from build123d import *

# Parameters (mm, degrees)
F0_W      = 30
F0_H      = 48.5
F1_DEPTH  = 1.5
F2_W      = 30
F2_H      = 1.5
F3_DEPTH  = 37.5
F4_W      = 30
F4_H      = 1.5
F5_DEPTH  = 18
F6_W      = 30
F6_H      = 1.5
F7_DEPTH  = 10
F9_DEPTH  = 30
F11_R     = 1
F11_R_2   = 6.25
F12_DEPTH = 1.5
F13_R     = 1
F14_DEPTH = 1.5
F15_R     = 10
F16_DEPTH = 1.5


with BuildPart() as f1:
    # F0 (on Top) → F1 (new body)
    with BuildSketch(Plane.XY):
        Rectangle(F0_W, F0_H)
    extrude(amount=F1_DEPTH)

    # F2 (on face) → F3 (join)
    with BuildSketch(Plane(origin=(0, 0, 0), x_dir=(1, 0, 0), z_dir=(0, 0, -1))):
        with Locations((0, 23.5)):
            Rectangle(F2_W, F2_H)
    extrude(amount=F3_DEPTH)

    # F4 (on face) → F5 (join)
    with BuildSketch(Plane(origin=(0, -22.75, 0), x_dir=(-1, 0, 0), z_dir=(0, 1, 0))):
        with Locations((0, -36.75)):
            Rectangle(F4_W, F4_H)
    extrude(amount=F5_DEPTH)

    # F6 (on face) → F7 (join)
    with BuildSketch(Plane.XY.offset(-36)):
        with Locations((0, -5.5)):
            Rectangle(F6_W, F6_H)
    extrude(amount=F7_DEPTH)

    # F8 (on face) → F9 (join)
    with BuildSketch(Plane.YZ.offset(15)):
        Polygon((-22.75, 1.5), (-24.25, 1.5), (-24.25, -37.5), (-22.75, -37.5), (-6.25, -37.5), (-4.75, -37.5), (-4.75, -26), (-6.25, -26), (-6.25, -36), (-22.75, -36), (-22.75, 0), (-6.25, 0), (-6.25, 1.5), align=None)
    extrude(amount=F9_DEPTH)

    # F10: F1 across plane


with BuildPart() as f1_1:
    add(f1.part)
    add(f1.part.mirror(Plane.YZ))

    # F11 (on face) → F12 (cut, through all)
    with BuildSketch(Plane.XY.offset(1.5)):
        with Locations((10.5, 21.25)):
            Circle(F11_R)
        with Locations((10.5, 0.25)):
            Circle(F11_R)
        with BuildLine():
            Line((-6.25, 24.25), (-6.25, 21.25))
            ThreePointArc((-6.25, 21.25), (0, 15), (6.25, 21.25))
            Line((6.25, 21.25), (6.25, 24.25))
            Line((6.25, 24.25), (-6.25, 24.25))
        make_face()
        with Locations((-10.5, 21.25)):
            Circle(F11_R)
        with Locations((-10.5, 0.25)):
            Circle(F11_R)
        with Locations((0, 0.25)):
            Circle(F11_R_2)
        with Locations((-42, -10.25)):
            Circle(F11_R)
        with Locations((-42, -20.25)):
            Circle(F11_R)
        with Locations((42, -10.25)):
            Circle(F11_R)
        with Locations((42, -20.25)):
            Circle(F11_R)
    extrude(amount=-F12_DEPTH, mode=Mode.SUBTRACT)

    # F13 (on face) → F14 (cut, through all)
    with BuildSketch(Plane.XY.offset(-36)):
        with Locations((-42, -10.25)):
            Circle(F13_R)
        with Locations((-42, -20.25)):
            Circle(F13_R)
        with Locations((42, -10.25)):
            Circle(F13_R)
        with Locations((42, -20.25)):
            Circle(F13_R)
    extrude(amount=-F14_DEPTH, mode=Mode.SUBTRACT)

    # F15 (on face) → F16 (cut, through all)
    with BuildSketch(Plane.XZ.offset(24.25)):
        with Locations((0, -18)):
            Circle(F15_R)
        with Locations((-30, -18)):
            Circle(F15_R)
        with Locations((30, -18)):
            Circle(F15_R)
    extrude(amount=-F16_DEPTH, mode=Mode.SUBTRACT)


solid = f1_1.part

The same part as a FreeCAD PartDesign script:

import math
import FreeCAD as App
import Part
import Sketcher


def add_polygon(sketch, points):
    """Adds a closed chain of lines whose ends are joined by coincident constraints."""
    first, n = sketch.GeometryCount, len(points)
    for a, b in zip(points, points[1:] + points[:1]):
        sketch.addGeometry(Part.LineSegment(App.Vector(*a, 0), App.Vector(*b, 0)), False)
    for i in range(n):
        sketch.addConstraint(Sketcher.Constraint("Coincident", first + i, 2, first + (i + 1) % n, 1))

doc = App.newDocument("Part")
body = doc.addObject("PartDesign::Body", "Body")

sketch1 = body.newObject("Sketcher::SketchObject", "Sketch")
sketch1.AttachmentSupport = (doc.getObject("XY_Plane"), [""])
sketch1.MapMode = "FlatFace"
add_polygon(sketch1, [(-15, 24), (-15, -24), (15, -24), (15, 24)])
sketch1.addConstraint([
    Sketcher.Constraint("Vertical", 0),
    Sketcher.Constraint("Horizontal", 1),
    Sketcher.Constraint("Vertical", 2),
    Sketcher.Constraint("Horizontal", 3),
    Sketcher.Constraint("Symmetric", 0, 2, 2, 2, -1, 1),
    Sketcher.Constraint("DistanceX", 1, 1, 1, 2, 30.0),
    Sketcher.Constraint("DistanceY", 0, 2, 0, 1, 48.5),
])
pad1 = body.newObject("PartDesign::Pad", "Pad")
pad1.Profile = sketch1
pad1.Length = 1.5

sketch2 = body.newObject("Sketcher::SketchObject", "Sketch001")
sketch2.AttachmentSupport = (doc.getObject("XY_Plane"), [""])
sketch2.MapMode = "FlatFace"
add_polygon(sketch2, [(-15, -24.2), (-15, -22.8), (15, -22.8), (15, -24.2)])
sketch2.addConstraint([
    Sketcher.Constraint("Vertical", 0),
    Sketcher.Constraint("Horizontal", 1),
    Sketcher.Constraint("Vertical", 2),
    Sketcher.Constraint("Horizontal", 3),
    Sketcher.Constraint("DistanceX", 1, 1, 1, 2, 30.0),
    Sketcher.Constraint("DistanceY", 0, 1, 0, 2, 1.5),
    Sketcher.Constraint("DistanceX", 0, 2, -1, 1, 15.0),
    Sketcher.Constraint("DistanceY", 0, 2, -1, 1, 22.75),
])
pad2 = body.newObject("PartDesign::Pad", "Pad001")
pad2.Profile = sketch2
pad2.Length = 37.5
pad2.Reversed = True

sketch3 = body.newObject("Sketcher::SketchObject", "Sketch002")
sketch3.AttachmentSupport = (doc.getObject("XZ_Plane"), [""])
sketch3.MapMode = "FlatFace"
sketch3.AttachmentOffset = App.Placement(App.Vector(0, 0, 22.75), App.Rotation())
add_polygon(sketch3, [(15, -36), (15, -37.5), (-15, -37.5), (-15, -36)])
sketch3.addConstraint([
    Sketcher.Constraint("Vertical", 0),
    Sketcher.Constraint("Horizontal", 1),
    Sketcher.Constraint("Vertical", 2),
    Sketcher.Constraint("Horizontal", 3),
    Sketcher.Constraint("DistanceX", 1, 2, 1, 1, 30.0),
    Sketcher.Constraint("DistanceY", 0, 2, 0, 1, 1.5),
    Sketcher.Constraint("DistanceX", -1, 1, 0, 2, 15.0),
    Sketcher.Constraint("DistanceY", 2, 2, -1, 1, 36.0),
])
pad3 = body.newObject("PartDesign::Pad", "Pad002")
pad3.Profile = sketch3
pad3.Length = 18
pad3.Reversed = True

sketch4 = body.newObject("Sketcher::SketchObject", "Sketch003")
sketch4.AttachmentSupport = (doc.getObject("XY_Plane"), [""])
sketch4.MapMode = "FlatFace"
sketch4.AttachmentOffset = App.Placement(App.Vector(0, 0, -36), App.Rotation())
add_polygon(sketch4, [(-15, -4.8), (-15, -6.2), (15, -6.2), (15, -4.8)])
sketch4.addConstraint([
    Sketcher.Constraint("Vertical", 0),
    Sketcher.Constraint("Horizontal", 1),
    Sketcher.Constraint("Vertical", 2),
    Sketcher.Constraint("Horizontal", 3),
    Sketcher.Constraint("DistanceX", 1, 1, 1, 2, 30.0),
    Sketcher.Constraint("DistanceY", 0, 2, 0, 1, 1.5),
    Sketcher.Constraint("DistanceX", 0, 2, -1, 1, 15.0),
    Sketcher.Constraint("DistanceY", 0, 2, -1, 1, 6.25),
])
pad4 = body.newObject("PartDesign::Pad", "Pad003")
pad4.Profile = sketch4
pad4.Length = 10

sketch5 = body.newObject("Sketcher::SketchObject", "Sketch004")
sketch5.AttachmentSupport = (doc.getObject("YZ_Plane"), [""])
sketch5.MapMode = "FlatFace"
sketch5.AttachmentOffset = App.Placement(App.Vector(0, 0, 15), App.Rotation())
add_polygon(sketch5, [(-24.2, 1.5), (-24.2, -37.5), (-4.8, -37.5), (-4.8, -26), (-6.2, -26), (-6.2, -36), (-22.8, -36), (-22.8, 0), (-6.2, 0), (-6.2, 1.5)])
sketch5.addConstraint([
    Sketcher.Constraint("Vertical", 0),
    Sketcher.Constraint("Horizontal", 1),
    Sketcher.Constraint("Vertical", 2),
    Sketcher.Constraint("Horizontal", 3),
    Sketcher.Constraint("Vertical", 4),
    Sketcher.Constraint("Horizontal", 5),
    Sketcher.Constraint("Vertical", 6),
    Sketcher.Constraint("Horizontal", 7),
    Sketcher.Constraint("Vertical", 8),
    Sketcher.Constraint("Horizontal", 9),
    Sketcher.Constraint("PointOnObject", 6, 2, -1),
    Sketcher.Constraint("Vertical", 4, 2, 7, 2),
    Sketcher.Constraint("Equal", 3, 8),
    Sketcher.Constraint("DistanceX", 9, 2, 9, 1, 18.0),
    Sketcher.Constraint("DistanceY", 0, 2, 0, 1, 39.0),
    Sketcher.Constraint("DistanceY", 4, 2, 4, 1, 10.0),
    Sketcher.Constraint("DistanceY", 6, 1, 6, 2, 36.0),
    Sketcher.Constraint("DistanceX", 1, 1, 1, 2, 19.5),
    Sketcher.Constraint("DistanceX", 5, 2, 5, 1, 16.5),
    Sketcher.Constraint("DistanceX", 0, 2, -1, 1, 24.25),
])
pad5 = body.newObject("PartDesign::Pad", "Pad004")
pad5.Profile = sketch5
pad5.Length = 30
body2 = doc.addObject("PartDesign::Body", "Body001")
doc.recompute()

body2.BaseFeature = body
doc.recompute()

mirroring = doc.addObject("Part::Mirroring", "Mirroring")
mirroring.Source = body
mirroring.Base = App.Vector(0, 0, 0)
mirroring.Normal = App.Vector(1, 0, 0)
body3 = doc.addObject("PartDesign::Body", "Body002")
body3.BaseFeature = mirroring
boolean = body2.newObject("PartDesign::Boolean", "Boolean")
boolean.Type = "Fuse"
boolean.addObjects([body3])
doc.recompute()

sketch6 = body2.newObject("Sketcher::SketchObject", "Sketch005")
sketch6.AttachmentSupport = (doc.getObject("XY_Plane001"), [""])
sketch6.MapMode = "FlatFace"
sketch6.AttachmentOffset = App.Placement(App.Vector(0, 0, 1.5), App.Rotation())
sketch6.addGeometry([
    Part.Circle(App.Vector(10.5, 21.2, 0), App.Vector(0, 0, 1), 1),
    Part.Circle(App.Vector(10.5, 0.2, 0), App.Vector(0, 0, 1), 1),
    Part.LineSegment(App.Vector(-6.2, 24.2, 0), App.Vector(-6.2, 21.2, 0)),
    Part.ArcOfCircle(Part.Circle(App.Vector(0, 21.2, 0), App.Vector(0, 0, 1), 6.2), math.radians(180), math.radians(360)),
    Part.LineSegment(App.Vector(6.2, 21.2, 0), App.Vector(6.2, 24.2, 0)),
    Part.LineSegment(App.Vector(6.2, 24.2, 0), App.Vector(-6.2, 24.2, 0)),
    Part.Circle(App.Vector(-10.5, 21.2, 0), App.Vector(0, 0, 1), 1),
    Part.Circle(App.Vector(-10.5, 0.2, 0), App.Vector(0, 0, 1), 1),
    Part.Circle(App.Vector(0, 0.2, 0), App.Vector(0, 0, 1), 6.2),
    Part.Circle(App.Vector(-42, -10.2, 0), App.Vector(0, 0, 1), 1),
    Part.Circle(App.Vector(-42, -20.2, 0), App.Vector(0, 0, 1), 1),
    Part.Circle(App.Vector(42, -10.2, 0), App.Vector(0, 0, 1), 1),
    Part.Circle(App.Vector(42, -20.2, 0), App.Vector(0, 0, 1), 1),
], False)
sketch6.addConstraint([
    Sketcher.Constraint("Tangent", 2, 2, 3, 1),
    Sketcher.Constraint("Tangent", 3, 2, 4, 1),
    Sketcher.Constraint("Coincident", 4, 2, 5, 1),
    Sketcher.Constraint("Coincident", 5, 2, 2, 1),
    Sketcher.Constraint("Vertical", 2),
    Sketcher.Constraint("Vertical", 4),
    Sketcher.Constraint("Horizontal", 5),
    Sketcher.Constraint("Equal", 0, 1),
    Sketcher.Constraint("Equal", 1, 6),
    Sketcher.Constraint("Equal", 6, 7),
    Sketcher.Constraint("Equal", 3, 8),
    Sketcher.Constraint("Equal", 7, 9),
    Sketcher.Constraint("Equal", 9, 10),
    Sketcher.Constraint("Equal", 10, 11),
    Sketcher.Constraint("Equal", 11, 12),
    Sketcher.Constraint("Symmetric", 0, 3, 6, 3, -2),
    Sketcher.Constraint("Symmetric", 1, 3, 7, 3, -2),
    Sketcher.Constraint("Symmetric", 9, 3, 11, 3, -2),
    Sketcher.Constraint("Symmetric", 10, 3, 12, 3, -2),
    Sketcher.Constraint("PointOnObject", 3, 3, -2),
    Sketcher.Constraint("PointOnObject", 8, 3, -2),
    Sketcher.Constraint("Horizontal", 0, 3, 3, 3),
    Sketcher.Constraint("Horizontal", 7, 3, 8, 3),
    Sketcher.Constraint("Vertical", 0, 3, 1, 3),
    Sketcher.Constraint("Vertical", 9, 3, 10, 3),
    Sketcher.Constraint("Diameter", 0, 2.0),
    Sketcher.Constraint("Diameter", 8, 12.5),
    Sketcher.Constraint("DistanceY", 2, 2, 2, 1, 3.0),
    Sketcher.Constraint("DistanceX", 9, 3, -1, 1, 42.0),
    Sketcher.Constraint("DistanceY", 1, 3, 0, 3, 21.0),
    Sketcher.Constraint("DistanceX", 6, 3, 0, 3, 21.0),
    Sketcher.Constraint("DistanceY", 10, 3, 9, 3, 10.0),
    Sketcher.Constraint("DistanceY", 9, 3, 7, 3, 10.5),
    Sketcher.Constraint("DistanceY", -1, 1, 0, 3, 21.25),
])
pocket1 = body2.newObject("PartDesign::Pocket", "Pocket")
pocket1.Profile = sketch6
pocket1.Length = 1.5

sketch7 = body2.newObject("Sketcher::SketchObject", "Sketch006")
sketch7.AttachmentSupport = (doc.getObject("XY_Plane001"), [""])
sketch7.MapMode = "FlatFace"
sketch7.AttachmentOffset = App.Placement(App.Vector(0, 0, -36), App.Rotation())
sketch7.addGeometry([
    Part.Circle(App.Vector(-42, -10.2, 0), App.Vector(0, 0, 1), 1),
    Part.Circle(App.Vector(-42, -20.2, 0), App.Vector(0, 0, 1), 1),
    Part.Circle(App.Vector(42, -10.2, 0), App.Vector(0, 0, 1), 1),
    Part.Circle(App.Vector(42, -20.2, 0), App.Vector(0, 0, 1), 1),
], False)
sketch7.addConstraint([
    Sketcher.Constraint("Equal", 0, 1),
    Sketcher.Constraint("Equal", 1, 2),
    Sketcher.Constraint("Equal", 2, 3),
    Sketcher.Constraint("Symmetric", 0, 3, 2, 3, -2),
    Sketcher.Constraint("Symmetric", 1, 3, 3, 3, -2),
    Sketcher.Constraint("Vertical", 0, 3, 1, 3),
    Sketcher.Constraint("Diameter", 0, 2.0),
    Sketcher.Constraint("DistanceX", 0, 3, -1, 1, 42.0),
    Sketcher.Constraint("DistanceY", 1, 3, 0, 3, 10.0),
    Sketcher.Constraint("DistanceY", 0, 3, -1, 1, 10.25),
])
pocket2 = body2.newObject("PartDesign::Pocket", "Pocket001")
pocket2.Profile = sketch7
pocket2.Type = "ThroughAll"

sketch8 = body2.newObject("Sketcher::SketchObject", "Sketch007")
sketch8.AttachmentSupport = (doc.getObject("XZ_Plane001"), [""])
sketch8.MapMode = "FlatFace"
sketch8.AttachmentOffset = App.Placement(App.Vector(0, 0, 24.25), App.Rotation())
sketch8.addGeometry([
    Part.Circle(App.Vector(0, -18, 0), App.Vector(0, 0, 1), 10),
    Part.Circle(App.Vector(-30, -18, 0), App.Vector(0, 0, 1), 10),
    Part.Circle(App.Vector(30, -18, 0), App.Vector(0, 0, 1), 10),
], False)
sketch8.addConstraint([
    Sketcher.Constraint("Equal", 0, 1),
    Sketcher.Constraint("Equal", 1, 2),
    Sketcher.Constraint("Symmetric", 1, 3, 2, 3, -2),
    Sketcher.Constraint("PointOnObject", 0, 3, -2),
    Sketcher.Constraint("Horizontal", 0, 3, 1, 3),
    Sketcher.Constraint("Diameter", 0, 20.0),
    Sketcher.Constraint("DistanceY", 0, 3, -1, 1, 18.0),
    Sketcher.Constraint("DistanceX", 1, 3, -1, 1, 30.0),
])
pocket3 = body2.newObject("PartDesign::Pocket", "Pocket002")
pocket3.Profile = sketch8
pocket3.Length = 1.5
mirroring.Visibility = False

doc.recompute()
